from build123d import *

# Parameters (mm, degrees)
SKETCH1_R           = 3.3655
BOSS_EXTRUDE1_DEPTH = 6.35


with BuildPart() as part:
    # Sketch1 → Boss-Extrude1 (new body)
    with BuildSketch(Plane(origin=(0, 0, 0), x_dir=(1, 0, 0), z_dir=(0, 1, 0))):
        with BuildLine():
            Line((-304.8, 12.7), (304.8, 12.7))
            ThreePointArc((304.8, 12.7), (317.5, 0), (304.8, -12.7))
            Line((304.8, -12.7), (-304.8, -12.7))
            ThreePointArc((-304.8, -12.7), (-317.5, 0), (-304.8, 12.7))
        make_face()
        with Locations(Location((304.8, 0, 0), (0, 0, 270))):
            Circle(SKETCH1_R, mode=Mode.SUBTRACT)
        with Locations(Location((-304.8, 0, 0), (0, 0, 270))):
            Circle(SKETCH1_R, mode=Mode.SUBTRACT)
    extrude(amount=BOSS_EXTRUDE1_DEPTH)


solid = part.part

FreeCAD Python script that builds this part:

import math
import FreeCAD as App
import Part
import Sketcher

V = App.Vector
Q = App.Units.Quantity

doc = App.newDocument("Part")
params = doc.addObject("Spreadsheet::Sheet", "Params")
for row, (alias, value) in enumerate([
    ("sketch1_radius", "0.5 in"),
    ("sketch1_width", "24 in"),
    ("sketch1_diameter", "0.265 in"),
    ("pad1_length", "0.25 in"),
], start=1):
    params.set(f"A{row}", alias)
    params.set(f"B{row}", "=" + value)
    params.setAlias(f"B{row}", alias)

body = doc.addObject("PartDesign::Body", "Body")

# Sketch on XZ plane
sketch1 = doc.addObject("Sketcher::SketchObject", "Sketch")
body.addObject(sketch1)
sketch1.AttachmentSupport = (doc.XZ_Plane, [""])
sketch1.MapMode = "FlatFace"
sketch1.addGeometry(Part.LineSegment(V(304.8, -12.7, 0), V(-304.8, -12.7, 0)), False)
sketch1.addGeometry(Part.ArcOfCircle(Part.Circle(V(-304.8, 0, 0), V(0, 0, 1), 12.7), math.radians(90), math.radians(270)), False)
sketch1.addGeometry(Part.LineSegment(V(-304.8, 12.7, 0), V(304.8, 12.7, 0)), False)
sketch1.addGeometry(Part.ArcOfCircle(Part.Circle(V(304.8, 0, 0), V(0, 0, 1), 12.7), math.radians(-90), math.radians(90)), False)
sketch1.addGeometry(Part.Circle(V(304.8, 0, 0), V(0, 0, 1), 3.4), False)
sketch1.addGeometry(Part.Circle(V(-304.8, 0, 0), V(0, 0, 1), 3.4), False)
sketch1.addConstraint(Sketcher.Constraint("Tangent", 0, 2, 1, 2))
sketch1.addConstraint(Sketcher.Constraint("Tangent", 1, 1, 2, 1))
sketch1.addConstraint(Sketcher.Constraint("Tangent", 2, 2, 3, 2))
sketch1.addConstraint(Sketcher.Constraint("Tangent", 3, 1, 0, 1))
sketch1.addConstraint(Sketcher.Constraint("Horizontal", 0))
sketch1.addConstraint(Sketcher.Constraint("Horizontal", 2))
sketch1.addConstraint(Sketcher.Constraint("Coincident", 4, 3, 3, 3))
sketch1.addConstraint(Sketcher.Constraint("Coincident", 5, 3, 1, 3))
sketch1.addConstraint(Sketcher.Constraint("Equal", 4, 5))
sketch1.addConstraint(Sketcher.Constraint("Symmetric", 1, 3, 3, 3, -1, 1))
sketch1.addConstraint(Sketcher.Constraint("Radius", 1, Q("0.5 in")))
sketch1.addConstraint(Sketcher.Constraint("DistanceX", 0, 2, 0, 1, Q("24 in")))
sketch1.addConstraint(Sketcher.Constraint("Diameter", 4, Q("0.265 in")))
sketch1.setExpression("Constraints[10]", "Params.sketch1_radius")
sketch1.setExpression("Constraints[11]", "Params.sketch1_width")
sketch1.setExpression("Constraints[12]", "Params.sketch1_diameter")
pad1 = doc.addObject("PartDesign::Pad", "Pad")
body.addObject(pad1)
pad1.Profile = sketch1
pad1.setExpression("Length", "Params.pad1_length")
pad1.Reversed = True

doc.recompute()
